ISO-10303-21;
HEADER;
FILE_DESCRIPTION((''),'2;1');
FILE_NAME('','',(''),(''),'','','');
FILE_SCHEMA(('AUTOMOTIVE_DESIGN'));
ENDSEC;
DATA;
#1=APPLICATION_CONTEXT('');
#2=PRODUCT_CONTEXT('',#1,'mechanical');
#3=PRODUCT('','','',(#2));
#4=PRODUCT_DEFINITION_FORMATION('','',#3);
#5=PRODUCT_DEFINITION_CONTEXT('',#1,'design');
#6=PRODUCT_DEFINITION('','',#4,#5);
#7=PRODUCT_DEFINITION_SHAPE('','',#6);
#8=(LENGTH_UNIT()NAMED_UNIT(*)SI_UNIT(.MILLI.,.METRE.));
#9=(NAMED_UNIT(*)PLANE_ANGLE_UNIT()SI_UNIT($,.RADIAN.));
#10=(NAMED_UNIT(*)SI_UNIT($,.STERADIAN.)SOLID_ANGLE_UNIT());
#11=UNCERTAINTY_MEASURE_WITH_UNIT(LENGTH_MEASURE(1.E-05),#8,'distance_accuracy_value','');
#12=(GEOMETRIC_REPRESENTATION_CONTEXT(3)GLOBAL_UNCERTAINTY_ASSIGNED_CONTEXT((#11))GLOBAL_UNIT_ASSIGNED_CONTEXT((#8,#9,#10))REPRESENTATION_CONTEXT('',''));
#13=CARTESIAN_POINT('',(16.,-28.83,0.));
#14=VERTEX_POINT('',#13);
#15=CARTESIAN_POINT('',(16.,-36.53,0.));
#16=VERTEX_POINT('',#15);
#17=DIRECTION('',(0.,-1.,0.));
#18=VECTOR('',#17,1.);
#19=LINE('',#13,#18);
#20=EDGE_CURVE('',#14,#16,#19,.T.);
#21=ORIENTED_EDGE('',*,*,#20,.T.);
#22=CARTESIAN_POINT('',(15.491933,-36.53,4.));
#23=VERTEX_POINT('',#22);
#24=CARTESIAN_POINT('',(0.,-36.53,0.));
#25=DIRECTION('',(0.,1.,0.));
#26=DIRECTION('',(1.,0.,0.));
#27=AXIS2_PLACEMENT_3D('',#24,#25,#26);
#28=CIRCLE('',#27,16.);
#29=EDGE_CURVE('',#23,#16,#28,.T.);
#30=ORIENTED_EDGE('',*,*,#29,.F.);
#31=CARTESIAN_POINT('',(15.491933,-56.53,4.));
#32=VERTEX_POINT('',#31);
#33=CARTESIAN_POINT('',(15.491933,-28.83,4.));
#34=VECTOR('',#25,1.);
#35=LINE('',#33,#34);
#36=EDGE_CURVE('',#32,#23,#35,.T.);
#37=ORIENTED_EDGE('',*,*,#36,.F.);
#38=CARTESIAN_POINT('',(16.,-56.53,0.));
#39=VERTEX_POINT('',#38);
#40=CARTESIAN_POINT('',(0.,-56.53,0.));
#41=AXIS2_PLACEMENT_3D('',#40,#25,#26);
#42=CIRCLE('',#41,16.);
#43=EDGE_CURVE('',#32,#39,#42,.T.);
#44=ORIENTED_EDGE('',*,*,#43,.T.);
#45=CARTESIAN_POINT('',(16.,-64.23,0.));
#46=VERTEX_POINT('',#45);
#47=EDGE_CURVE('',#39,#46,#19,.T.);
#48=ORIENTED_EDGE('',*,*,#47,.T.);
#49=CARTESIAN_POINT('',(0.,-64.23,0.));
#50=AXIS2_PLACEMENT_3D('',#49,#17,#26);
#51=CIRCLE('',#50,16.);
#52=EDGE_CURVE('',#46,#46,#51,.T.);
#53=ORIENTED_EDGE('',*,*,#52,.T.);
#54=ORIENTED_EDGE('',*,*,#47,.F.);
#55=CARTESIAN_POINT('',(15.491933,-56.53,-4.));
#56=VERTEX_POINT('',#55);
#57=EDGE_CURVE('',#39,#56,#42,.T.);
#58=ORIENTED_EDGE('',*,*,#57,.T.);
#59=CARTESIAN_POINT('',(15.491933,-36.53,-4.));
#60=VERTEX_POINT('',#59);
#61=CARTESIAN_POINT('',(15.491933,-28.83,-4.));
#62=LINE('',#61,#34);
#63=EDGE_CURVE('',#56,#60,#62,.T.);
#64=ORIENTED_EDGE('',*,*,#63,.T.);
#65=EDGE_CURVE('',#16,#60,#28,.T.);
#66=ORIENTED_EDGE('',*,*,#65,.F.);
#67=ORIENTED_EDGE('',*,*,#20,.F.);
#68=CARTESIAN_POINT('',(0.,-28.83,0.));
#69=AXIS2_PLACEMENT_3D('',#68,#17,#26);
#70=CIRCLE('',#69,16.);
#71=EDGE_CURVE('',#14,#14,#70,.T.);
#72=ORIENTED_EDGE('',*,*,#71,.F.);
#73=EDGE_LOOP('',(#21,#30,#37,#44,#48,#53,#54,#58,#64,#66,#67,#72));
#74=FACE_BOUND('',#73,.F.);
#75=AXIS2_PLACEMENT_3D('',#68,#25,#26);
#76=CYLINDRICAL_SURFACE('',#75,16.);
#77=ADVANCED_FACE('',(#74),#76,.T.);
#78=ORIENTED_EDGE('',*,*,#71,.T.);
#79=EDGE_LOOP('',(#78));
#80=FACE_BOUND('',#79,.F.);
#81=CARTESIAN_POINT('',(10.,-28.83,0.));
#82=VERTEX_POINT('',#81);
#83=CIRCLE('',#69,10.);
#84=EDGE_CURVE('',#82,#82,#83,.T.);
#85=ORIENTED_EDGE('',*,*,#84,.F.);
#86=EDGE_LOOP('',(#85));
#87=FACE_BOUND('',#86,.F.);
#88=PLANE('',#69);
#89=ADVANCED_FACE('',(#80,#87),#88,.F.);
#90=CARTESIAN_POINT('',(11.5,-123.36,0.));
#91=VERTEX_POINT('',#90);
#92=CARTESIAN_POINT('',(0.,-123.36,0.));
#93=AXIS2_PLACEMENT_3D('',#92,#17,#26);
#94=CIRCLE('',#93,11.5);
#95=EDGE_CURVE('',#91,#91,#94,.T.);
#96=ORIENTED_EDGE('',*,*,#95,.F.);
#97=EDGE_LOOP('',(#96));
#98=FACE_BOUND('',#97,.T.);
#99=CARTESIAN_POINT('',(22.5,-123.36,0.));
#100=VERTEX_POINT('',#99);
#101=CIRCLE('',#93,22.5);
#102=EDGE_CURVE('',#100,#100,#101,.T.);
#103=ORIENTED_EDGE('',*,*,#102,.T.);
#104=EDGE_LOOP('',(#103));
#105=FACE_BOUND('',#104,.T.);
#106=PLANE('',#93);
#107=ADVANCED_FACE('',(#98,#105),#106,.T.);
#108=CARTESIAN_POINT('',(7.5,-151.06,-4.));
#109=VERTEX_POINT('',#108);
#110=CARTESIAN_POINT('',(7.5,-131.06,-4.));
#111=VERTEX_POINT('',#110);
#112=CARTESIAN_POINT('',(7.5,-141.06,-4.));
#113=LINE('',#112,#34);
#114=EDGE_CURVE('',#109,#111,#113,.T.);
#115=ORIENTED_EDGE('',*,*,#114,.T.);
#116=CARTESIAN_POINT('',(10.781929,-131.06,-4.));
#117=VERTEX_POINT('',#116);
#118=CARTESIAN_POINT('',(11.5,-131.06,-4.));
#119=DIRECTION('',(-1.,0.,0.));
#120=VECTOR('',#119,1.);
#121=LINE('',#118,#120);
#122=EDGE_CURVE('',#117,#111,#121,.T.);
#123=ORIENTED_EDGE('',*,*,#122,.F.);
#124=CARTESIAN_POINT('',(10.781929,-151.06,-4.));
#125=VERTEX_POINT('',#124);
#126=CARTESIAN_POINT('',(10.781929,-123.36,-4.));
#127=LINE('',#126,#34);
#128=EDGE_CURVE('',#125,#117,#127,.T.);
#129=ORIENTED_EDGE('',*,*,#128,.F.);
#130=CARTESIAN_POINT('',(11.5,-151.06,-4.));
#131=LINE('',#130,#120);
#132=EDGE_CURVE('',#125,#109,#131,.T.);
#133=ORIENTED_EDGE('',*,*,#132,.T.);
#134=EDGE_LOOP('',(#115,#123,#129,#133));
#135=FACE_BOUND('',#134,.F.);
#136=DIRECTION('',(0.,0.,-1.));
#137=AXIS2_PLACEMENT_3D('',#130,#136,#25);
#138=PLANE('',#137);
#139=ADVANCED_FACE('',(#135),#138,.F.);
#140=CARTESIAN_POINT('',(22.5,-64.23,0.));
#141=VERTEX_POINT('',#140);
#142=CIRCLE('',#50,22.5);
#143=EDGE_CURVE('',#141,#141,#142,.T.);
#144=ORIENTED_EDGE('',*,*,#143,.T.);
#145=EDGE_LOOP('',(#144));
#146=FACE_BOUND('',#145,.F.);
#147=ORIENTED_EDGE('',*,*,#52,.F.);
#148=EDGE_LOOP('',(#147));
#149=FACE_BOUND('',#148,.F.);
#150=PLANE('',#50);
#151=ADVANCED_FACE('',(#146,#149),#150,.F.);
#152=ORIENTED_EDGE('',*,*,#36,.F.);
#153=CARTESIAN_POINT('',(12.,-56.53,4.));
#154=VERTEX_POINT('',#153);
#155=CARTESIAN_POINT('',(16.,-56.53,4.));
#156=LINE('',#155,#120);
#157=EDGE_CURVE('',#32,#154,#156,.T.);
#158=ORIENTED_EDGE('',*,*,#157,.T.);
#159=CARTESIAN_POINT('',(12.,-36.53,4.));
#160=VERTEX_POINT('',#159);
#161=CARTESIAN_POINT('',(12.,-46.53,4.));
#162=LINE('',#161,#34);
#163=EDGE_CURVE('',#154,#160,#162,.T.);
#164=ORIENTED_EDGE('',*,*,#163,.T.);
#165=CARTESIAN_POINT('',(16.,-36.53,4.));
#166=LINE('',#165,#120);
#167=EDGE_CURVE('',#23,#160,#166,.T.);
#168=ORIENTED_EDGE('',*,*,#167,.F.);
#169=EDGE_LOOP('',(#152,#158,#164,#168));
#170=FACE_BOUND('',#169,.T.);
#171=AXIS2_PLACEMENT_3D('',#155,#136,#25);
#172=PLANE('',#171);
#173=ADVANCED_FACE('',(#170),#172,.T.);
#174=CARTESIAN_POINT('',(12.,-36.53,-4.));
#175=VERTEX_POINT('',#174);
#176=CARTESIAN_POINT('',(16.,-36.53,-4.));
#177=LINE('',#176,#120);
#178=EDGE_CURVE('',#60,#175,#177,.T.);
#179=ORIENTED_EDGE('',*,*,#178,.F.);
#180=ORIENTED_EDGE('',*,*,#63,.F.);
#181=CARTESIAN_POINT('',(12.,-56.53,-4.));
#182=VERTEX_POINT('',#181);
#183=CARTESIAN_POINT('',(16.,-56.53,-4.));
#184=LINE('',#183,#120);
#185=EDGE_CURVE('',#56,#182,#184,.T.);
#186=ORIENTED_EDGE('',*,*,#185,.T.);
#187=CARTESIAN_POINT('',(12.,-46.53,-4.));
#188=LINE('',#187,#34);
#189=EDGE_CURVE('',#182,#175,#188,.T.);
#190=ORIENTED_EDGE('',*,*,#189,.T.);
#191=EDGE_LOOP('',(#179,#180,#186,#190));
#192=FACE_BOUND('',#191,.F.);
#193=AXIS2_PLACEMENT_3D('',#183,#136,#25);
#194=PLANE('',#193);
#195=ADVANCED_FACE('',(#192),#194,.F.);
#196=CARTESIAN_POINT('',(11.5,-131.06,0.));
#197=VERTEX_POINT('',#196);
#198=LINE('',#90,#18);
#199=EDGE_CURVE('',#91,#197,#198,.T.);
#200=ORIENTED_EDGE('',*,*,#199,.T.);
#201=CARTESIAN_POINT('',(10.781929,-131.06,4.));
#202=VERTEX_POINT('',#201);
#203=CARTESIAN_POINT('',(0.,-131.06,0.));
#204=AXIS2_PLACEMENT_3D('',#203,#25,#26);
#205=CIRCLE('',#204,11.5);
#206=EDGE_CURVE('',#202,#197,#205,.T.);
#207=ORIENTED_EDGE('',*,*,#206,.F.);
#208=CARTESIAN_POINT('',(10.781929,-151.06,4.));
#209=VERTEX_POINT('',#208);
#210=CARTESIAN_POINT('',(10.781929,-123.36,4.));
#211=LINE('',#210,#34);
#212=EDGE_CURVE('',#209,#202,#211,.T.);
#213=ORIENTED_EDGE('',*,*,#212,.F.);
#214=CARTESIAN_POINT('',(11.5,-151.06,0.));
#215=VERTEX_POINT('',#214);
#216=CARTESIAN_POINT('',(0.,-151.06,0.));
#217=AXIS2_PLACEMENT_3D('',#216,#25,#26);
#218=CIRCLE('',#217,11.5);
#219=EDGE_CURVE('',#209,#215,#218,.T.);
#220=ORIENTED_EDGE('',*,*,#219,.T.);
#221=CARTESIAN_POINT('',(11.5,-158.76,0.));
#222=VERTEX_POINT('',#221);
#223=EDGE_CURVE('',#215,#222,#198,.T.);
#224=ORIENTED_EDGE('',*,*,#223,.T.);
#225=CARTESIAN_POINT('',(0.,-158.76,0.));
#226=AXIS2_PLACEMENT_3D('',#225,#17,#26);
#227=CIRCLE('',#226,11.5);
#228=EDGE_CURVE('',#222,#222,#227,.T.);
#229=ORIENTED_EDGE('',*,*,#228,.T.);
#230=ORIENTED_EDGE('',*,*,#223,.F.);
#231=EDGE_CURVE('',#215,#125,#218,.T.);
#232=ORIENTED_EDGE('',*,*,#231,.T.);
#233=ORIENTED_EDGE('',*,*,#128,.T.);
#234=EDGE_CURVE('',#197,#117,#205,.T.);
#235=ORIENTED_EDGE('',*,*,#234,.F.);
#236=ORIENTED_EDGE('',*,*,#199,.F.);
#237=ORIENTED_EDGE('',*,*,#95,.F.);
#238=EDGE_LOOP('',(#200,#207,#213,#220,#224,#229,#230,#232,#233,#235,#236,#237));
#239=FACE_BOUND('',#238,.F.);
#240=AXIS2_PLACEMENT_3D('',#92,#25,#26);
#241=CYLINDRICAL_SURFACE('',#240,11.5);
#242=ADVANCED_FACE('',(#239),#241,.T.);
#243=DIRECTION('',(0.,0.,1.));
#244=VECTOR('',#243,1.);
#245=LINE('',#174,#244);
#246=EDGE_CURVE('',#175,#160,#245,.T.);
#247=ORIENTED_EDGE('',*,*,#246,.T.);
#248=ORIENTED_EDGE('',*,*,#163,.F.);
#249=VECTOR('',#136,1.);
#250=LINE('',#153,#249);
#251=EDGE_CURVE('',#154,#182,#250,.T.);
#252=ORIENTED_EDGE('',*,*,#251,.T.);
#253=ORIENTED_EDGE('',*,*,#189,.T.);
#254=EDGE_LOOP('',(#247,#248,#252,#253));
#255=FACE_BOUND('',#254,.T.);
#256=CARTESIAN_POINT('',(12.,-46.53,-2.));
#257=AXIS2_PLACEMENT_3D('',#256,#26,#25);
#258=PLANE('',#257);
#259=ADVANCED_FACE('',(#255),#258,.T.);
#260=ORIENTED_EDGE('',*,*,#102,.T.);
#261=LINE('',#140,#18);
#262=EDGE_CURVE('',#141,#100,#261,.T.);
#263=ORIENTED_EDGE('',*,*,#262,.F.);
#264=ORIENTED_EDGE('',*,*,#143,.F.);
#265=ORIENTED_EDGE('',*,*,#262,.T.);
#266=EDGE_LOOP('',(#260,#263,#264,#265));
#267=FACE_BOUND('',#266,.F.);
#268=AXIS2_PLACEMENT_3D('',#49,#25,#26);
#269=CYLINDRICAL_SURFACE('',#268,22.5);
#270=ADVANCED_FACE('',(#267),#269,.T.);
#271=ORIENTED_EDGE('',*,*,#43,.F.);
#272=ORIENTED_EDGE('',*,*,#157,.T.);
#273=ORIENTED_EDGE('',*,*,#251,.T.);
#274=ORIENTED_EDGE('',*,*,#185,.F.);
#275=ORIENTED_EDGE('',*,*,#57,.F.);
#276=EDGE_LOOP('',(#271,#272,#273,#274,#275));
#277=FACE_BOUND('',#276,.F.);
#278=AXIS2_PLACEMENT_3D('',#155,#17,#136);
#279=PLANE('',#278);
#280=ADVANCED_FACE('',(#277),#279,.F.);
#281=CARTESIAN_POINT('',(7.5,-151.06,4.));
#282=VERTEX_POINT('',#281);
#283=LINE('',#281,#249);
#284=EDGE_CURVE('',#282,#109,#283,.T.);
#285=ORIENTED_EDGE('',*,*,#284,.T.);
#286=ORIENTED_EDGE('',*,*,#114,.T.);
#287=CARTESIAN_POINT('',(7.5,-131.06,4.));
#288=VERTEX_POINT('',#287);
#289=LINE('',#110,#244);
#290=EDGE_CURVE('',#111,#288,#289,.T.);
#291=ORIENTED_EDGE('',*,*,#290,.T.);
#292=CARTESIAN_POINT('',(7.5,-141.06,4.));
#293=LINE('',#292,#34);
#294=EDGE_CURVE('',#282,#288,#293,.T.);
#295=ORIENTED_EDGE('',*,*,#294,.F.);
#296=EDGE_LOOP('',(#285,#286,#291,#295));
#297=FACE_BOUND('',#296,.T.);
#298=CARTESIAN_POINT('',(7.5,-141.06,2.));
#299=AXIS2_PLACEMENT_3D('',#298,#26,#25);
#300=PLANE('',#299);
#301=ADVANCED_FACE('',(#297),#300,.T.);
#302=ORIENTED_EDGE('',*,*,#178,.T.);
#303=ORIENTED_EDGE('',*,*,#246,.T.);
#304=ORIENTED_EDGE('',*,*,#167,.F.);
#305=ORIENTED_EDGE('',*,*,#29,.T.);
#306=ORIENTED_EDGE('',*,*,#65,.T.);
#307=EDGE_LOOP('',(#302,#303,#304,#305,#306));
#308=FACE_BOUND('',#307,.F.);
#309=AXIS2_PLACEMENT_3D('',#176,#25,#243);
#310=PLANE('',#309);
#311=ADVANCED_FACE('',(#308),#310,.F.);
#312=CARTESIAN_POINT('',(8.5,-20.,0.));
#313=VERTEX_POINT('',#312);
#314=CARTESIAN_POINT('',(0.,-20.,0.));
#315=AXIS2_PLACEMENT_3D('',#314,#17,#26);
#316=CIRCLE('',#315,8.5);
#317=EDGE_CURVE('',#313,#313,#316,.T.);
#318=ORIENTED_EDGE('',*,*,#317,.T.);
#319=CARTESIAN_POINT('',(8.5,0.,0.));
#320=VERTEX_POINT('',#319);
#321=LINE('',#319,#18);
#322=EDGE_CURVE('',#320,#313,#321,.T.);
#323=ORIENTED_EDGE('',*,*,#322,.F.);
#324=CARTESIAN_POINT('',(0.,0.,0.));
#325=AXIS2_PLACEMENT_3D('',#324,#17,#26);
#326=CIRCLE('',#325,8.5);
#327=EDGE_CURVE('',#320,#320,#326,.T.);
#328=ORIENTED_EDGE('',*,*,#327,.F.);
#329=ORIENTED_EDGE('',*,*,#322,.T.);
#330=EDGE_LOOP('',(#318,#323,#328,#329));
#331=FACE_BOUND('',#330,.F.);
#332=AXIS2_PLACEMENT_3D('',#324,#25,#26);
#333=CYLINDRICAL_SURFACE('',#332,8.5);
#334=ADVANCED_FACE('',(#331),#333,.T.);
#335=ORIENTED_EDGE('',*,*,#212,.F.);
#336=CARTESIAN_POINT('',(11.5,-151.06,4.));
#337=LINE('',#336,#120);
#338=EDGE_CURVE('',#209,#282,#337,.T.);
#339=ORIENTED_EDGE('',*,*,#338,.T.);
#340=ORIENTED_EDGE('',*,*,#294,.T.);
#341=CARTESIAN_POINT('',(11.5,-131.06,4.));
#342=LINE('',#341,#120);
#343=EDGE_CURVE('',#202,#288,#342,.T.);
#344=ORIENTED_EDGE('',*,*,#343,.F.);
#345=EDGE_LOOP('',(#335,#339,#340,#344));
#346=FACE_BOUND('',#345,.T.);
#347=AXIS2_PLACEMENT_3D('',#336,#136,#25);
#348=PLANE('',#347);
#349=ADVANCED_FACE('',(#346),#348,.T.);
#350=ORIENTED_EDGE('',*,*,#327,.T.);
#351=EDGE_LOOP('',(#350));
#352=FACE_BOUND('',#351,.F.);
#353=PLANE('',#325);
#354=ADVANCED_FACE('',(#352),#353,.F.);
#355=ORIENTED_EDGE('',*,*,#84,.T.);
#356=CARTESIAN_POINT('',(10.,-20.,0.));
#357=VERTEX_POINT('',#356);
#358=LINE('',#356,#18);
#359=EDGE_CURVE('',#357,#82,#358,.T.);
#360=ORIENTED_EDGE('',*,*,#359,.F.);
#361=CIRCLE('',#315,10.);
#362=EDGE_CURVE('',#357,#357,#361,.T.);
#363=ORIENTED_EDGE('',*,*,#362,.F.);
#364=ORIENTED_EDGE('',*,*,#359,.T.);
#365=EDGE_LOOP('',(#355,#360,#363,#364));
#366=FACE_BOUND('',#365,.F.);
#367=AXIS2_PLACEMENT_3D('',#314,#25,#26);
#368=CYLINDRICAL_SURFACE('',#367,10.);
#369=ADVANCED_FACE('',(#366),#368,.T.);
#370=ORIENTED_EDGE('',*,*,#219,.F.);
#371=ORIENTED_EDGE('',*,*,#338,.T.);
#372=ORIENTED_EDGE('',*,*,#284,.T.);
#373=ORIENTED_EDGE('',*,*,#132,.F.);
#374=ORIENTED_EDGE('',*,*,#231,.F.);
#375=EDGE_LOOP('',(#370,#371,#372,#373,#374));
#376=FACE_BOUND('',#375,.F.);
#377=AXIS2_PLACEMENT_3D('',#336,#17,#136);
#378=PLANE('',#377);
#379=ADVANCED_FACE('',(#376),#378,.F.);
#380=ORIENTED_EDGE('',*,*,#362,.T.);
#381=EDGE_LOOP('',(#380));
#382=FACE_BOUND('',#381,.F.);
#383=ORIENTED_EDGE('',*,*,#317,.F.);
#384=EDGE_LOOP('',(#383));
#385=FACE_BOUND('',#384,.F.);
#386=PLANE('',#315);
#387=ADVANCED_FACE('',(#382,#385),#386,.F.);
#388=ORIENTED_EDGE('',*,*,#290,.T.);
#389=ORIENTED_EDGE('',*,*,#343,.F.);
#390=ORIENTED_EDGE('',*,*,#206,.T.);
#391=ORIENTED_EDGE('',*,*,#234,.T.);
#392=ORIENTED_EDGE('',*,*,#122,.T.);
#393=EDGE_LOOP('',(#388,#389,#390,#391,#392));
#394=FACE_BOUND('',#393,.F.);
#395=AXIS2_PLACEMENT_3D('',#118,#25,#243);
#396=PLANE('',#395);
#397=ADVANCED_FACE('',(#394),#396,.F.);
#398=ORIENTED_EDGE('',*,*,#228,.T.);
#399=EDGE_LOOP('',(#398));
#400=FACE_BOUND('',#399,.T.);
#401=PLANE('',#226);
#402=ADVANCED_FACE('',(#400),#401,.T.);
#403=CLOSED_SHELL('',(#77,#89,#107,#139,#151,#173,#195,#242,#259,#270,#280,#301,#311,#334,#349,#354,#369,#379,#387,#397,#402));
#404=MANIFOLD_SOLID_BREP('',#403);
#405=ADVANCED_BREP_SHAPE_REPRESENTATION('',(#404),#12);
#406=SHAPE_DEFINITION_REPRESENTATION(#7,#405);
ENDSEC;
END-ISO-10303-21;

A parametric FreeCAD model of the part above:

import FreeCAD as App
import Part
import Sketcher


def add_polygon(sketch, points):
    """Adds a closed chain of lines whose ends are joined by coincident constraints."""
    first, n = sketch.GeometryCount, len(points)
    for a, b in zip(points, points[1:] + points[:1]):
        sketch.addGeometry(Part.LineSegment(App.Vector(*a, 0), App.Vector(*b, 0)), False)
    for i in range(n):
        sketch.addConstraint(Sketcher.Constraint("Coincident", first + i, 2, first + (i + 1) % n, 1))

doc = App.newDocument("Part")
body = doc.addObject("PartDesign::Body", "Body")

# Sketch on XZ plane
sketch1 = body.newObject("Sketcher::SketchObject", "Sketch")
sketch1.AttachmentSupport = (doc.getObject("XZ_Plane"), [""])
sketch1.MapMode = "FlatFace"
sketch1.addGeometry(Part.Circle(App.Vector(0, 0, 0), App.Vector(0, 0, 1), 8), False)
sketch1.addConstraint([
    Sketcher.Constraint("Coincident", 0, 3, -1, 1),
    Sketcher.Constraint("Diameter", 0, 17.0),
])
pad1 = body.newObject("PartDesign::Pad", "Pad")
pad1.Profile = sketch1
pad1.Length = 20

# Sketch on XZ plane
sketch2 = body.newObject("Sketcher::SketchObject", "Sketch001")
sketch2.AttachmentSupport = (doc.getObject("XZ_Plane"), [""])
sketch2.MapMode = "FlatFace"
sketch2.AttachmentOffset = App.Placement(App.Vector(0, 0, 20), App.Rotation())
sketch2.addGeometry(Part.Circle(App.Vector(0, 0, 0), App.Vector(0, 0, 1), 10), False)
sketch2.addConstraint([
    Sketcher.Constraint("Coincident", 0, 3, -1, 1),
    Sketcher.Constraint("Diameter", 0, 20.0),
])
pad2 = body.newObject("PartDesign::Pad", "Pad001")
pad2.Profile = sketch2
pad2.Length = 8.83

# Sketch on XZ plane
sketch3 = body.newObject("Sketcher::SketchObject", "Sketch002")
sketch3.AttachmentSupport = (doc.getObject("XZ_Plane"), [""])
sketch3.MapMode = "FlatFace"
sketch3.AttachmentOffset = App.Placement(App.Vector(0, 0, 28.83), App.Rotation())
sketch3.addGeometry(Part.Circle(App.Vector(0, 0, 0), App.Vector(0, 0, 1), 16), False)
sketch3.addConstraint([
    Sketcher.Constraint("Coincident", 0, 3, -1, 1),
    Sketcher.Constraint("Diameter", 0, 32.0),
])
pad3 = body.newObject("PartDesign::Pad", "Pad002")
pad3.Profile = sketch3
pad3.Length = 35.4

# Sketch on XZ plane
sketch4 = body.newObject("Sketcher::SketchObject", "Sketch003")
sketch4.AttachmentSupport = (doc.getObject("XZ_Plane"), [""])
sketch4.MapMode = "FlatFace"
sketch4.AttachmentOffset = App.Placement(App.Vector(0, 0, 64.23), App.Rotation())
sketch4.addGeometry(Part.Circle(App.Vector(0, 0, 0), App.Vector(0, 0, 1), 22), False)
sketch4.addConstraint([
    Sketcher.Constraint("Coincident", 0, 3, -1, 1),
    Sketcher.Constraint("Diameter", 0, 45.0),
])
pad4 = body.newObject("PartDesign::Pad", "Pad003")
pad4.Profile = sketch4
pad4.Length = 59.13

# Sketch on XZ plane
sketch5 = body.newObject("Sketcher::SketchObject", "Sketch004")
sketch5.AttachmentSupport = (doc.getObject("XZ_Plane"), [""])
sketch5.MapMode = "FlatFace"
sketch5.AttachmentOffset = App.Placement(App.Vector(0, 0, 123.36), App.Rotation())
sketch5.addGeometry(Part.Circle(App.Vector(0, 0, 0), App.Vector(0, 0, 1), 12), False)
sketch5.addConstraint([
    Sketcher.Constraint("Coincident", 0, 3, -1, 1),
    Sketcher.Constraint("Diameter", 0, 23.0),
])
pad5 = body.newObject("PartDesign::Pad", "Pad004")
pad5.Profile = sketch5
pad5.Length = 35.4

# Sketch on YZ plane
sketch6 = body.newObject("Sketcher::SketchObject", "Sketch005")
sketch6.AttachmentSupport = (doc.getObject("YZ_Plane"), [""])
sketch6.MapMode = "FlatFace"
sketch6.AttachmentOffset = App.Placement(App.Vector(0, 0, 11.5), App.Rotation())
add_polygon(sketch6, [(-151, 4), (-151, -4), (-131, -4), (-131, 4)])  # lines 0-3
sketch6.addConstraint([
    Sketcher.Constraint("Vertical", 0),
    Sketcher.Constraint("Horizontal", 1),
    Sketcher.Constraint("Vertical", 2),
    Sketcher.Constraint("Horizontal", 3),
    Sketcher.Constraint("DistanceX", 1, 1, 1, 2, 20.0),
    Sketcher.Constraint("DistanceY", 0, 2, 0, 1, 8.0),
    Sketcher.Constraint("DistanceY", 0, 2, -1, 1, 4.0),
    Sketcher.Constraint("DistanceX", 0, 2, -1, 1, 151.06),
])
pocket1 = body.newObject("PartDesign::Pocket", "Pocket")
pocket1.Profile = sketch6
pocket1.Length = 4

# Sketch on YZ plane
sketch7 = body.newObject("Sketcher::SketchObject", "Sketch006")
sketch7.AttachmentSupport = (doc.getObject("YZ_Plane"), [""])
sketch7.MapMode = "FlatFace"
sketch7.AttachmentOffset = App.Placement(App.Vector(0, 0, 16), App.Rotation())
add_polygon(sketch7, [(-57, -4), (-37, -4), (-37, 4), (-57, 4)])  # lines 0-3
sketch7.addConstraint([
    Sketcher.Constraint("Horizontal", 0),
    Sketcher.Constraint("Vertical", 1),
    Sketcher.Constraint("Horizontal", 2),
    Sketcher.Constraint("Vertical", 3),
    Sketcher.Constraint("DistanceX", 0, 1, 0, 2, 20.0),
    Sketcher.Constraint("DistanceY", 1, 1, 1, 2, 8.0),
    Sketcher.Constraint("DistanceY", 0, 2, -1, 1, 4.0),
    Sketcher.Constraint("DistanceX", 0, 2, -1, 1, 36.53),
])
pocket2 = body.newObject("PartDesign::Pocket", "Pocket001")
pocket2.Profile = sketch7
pocket2.Length = 4

doc.recompute()
